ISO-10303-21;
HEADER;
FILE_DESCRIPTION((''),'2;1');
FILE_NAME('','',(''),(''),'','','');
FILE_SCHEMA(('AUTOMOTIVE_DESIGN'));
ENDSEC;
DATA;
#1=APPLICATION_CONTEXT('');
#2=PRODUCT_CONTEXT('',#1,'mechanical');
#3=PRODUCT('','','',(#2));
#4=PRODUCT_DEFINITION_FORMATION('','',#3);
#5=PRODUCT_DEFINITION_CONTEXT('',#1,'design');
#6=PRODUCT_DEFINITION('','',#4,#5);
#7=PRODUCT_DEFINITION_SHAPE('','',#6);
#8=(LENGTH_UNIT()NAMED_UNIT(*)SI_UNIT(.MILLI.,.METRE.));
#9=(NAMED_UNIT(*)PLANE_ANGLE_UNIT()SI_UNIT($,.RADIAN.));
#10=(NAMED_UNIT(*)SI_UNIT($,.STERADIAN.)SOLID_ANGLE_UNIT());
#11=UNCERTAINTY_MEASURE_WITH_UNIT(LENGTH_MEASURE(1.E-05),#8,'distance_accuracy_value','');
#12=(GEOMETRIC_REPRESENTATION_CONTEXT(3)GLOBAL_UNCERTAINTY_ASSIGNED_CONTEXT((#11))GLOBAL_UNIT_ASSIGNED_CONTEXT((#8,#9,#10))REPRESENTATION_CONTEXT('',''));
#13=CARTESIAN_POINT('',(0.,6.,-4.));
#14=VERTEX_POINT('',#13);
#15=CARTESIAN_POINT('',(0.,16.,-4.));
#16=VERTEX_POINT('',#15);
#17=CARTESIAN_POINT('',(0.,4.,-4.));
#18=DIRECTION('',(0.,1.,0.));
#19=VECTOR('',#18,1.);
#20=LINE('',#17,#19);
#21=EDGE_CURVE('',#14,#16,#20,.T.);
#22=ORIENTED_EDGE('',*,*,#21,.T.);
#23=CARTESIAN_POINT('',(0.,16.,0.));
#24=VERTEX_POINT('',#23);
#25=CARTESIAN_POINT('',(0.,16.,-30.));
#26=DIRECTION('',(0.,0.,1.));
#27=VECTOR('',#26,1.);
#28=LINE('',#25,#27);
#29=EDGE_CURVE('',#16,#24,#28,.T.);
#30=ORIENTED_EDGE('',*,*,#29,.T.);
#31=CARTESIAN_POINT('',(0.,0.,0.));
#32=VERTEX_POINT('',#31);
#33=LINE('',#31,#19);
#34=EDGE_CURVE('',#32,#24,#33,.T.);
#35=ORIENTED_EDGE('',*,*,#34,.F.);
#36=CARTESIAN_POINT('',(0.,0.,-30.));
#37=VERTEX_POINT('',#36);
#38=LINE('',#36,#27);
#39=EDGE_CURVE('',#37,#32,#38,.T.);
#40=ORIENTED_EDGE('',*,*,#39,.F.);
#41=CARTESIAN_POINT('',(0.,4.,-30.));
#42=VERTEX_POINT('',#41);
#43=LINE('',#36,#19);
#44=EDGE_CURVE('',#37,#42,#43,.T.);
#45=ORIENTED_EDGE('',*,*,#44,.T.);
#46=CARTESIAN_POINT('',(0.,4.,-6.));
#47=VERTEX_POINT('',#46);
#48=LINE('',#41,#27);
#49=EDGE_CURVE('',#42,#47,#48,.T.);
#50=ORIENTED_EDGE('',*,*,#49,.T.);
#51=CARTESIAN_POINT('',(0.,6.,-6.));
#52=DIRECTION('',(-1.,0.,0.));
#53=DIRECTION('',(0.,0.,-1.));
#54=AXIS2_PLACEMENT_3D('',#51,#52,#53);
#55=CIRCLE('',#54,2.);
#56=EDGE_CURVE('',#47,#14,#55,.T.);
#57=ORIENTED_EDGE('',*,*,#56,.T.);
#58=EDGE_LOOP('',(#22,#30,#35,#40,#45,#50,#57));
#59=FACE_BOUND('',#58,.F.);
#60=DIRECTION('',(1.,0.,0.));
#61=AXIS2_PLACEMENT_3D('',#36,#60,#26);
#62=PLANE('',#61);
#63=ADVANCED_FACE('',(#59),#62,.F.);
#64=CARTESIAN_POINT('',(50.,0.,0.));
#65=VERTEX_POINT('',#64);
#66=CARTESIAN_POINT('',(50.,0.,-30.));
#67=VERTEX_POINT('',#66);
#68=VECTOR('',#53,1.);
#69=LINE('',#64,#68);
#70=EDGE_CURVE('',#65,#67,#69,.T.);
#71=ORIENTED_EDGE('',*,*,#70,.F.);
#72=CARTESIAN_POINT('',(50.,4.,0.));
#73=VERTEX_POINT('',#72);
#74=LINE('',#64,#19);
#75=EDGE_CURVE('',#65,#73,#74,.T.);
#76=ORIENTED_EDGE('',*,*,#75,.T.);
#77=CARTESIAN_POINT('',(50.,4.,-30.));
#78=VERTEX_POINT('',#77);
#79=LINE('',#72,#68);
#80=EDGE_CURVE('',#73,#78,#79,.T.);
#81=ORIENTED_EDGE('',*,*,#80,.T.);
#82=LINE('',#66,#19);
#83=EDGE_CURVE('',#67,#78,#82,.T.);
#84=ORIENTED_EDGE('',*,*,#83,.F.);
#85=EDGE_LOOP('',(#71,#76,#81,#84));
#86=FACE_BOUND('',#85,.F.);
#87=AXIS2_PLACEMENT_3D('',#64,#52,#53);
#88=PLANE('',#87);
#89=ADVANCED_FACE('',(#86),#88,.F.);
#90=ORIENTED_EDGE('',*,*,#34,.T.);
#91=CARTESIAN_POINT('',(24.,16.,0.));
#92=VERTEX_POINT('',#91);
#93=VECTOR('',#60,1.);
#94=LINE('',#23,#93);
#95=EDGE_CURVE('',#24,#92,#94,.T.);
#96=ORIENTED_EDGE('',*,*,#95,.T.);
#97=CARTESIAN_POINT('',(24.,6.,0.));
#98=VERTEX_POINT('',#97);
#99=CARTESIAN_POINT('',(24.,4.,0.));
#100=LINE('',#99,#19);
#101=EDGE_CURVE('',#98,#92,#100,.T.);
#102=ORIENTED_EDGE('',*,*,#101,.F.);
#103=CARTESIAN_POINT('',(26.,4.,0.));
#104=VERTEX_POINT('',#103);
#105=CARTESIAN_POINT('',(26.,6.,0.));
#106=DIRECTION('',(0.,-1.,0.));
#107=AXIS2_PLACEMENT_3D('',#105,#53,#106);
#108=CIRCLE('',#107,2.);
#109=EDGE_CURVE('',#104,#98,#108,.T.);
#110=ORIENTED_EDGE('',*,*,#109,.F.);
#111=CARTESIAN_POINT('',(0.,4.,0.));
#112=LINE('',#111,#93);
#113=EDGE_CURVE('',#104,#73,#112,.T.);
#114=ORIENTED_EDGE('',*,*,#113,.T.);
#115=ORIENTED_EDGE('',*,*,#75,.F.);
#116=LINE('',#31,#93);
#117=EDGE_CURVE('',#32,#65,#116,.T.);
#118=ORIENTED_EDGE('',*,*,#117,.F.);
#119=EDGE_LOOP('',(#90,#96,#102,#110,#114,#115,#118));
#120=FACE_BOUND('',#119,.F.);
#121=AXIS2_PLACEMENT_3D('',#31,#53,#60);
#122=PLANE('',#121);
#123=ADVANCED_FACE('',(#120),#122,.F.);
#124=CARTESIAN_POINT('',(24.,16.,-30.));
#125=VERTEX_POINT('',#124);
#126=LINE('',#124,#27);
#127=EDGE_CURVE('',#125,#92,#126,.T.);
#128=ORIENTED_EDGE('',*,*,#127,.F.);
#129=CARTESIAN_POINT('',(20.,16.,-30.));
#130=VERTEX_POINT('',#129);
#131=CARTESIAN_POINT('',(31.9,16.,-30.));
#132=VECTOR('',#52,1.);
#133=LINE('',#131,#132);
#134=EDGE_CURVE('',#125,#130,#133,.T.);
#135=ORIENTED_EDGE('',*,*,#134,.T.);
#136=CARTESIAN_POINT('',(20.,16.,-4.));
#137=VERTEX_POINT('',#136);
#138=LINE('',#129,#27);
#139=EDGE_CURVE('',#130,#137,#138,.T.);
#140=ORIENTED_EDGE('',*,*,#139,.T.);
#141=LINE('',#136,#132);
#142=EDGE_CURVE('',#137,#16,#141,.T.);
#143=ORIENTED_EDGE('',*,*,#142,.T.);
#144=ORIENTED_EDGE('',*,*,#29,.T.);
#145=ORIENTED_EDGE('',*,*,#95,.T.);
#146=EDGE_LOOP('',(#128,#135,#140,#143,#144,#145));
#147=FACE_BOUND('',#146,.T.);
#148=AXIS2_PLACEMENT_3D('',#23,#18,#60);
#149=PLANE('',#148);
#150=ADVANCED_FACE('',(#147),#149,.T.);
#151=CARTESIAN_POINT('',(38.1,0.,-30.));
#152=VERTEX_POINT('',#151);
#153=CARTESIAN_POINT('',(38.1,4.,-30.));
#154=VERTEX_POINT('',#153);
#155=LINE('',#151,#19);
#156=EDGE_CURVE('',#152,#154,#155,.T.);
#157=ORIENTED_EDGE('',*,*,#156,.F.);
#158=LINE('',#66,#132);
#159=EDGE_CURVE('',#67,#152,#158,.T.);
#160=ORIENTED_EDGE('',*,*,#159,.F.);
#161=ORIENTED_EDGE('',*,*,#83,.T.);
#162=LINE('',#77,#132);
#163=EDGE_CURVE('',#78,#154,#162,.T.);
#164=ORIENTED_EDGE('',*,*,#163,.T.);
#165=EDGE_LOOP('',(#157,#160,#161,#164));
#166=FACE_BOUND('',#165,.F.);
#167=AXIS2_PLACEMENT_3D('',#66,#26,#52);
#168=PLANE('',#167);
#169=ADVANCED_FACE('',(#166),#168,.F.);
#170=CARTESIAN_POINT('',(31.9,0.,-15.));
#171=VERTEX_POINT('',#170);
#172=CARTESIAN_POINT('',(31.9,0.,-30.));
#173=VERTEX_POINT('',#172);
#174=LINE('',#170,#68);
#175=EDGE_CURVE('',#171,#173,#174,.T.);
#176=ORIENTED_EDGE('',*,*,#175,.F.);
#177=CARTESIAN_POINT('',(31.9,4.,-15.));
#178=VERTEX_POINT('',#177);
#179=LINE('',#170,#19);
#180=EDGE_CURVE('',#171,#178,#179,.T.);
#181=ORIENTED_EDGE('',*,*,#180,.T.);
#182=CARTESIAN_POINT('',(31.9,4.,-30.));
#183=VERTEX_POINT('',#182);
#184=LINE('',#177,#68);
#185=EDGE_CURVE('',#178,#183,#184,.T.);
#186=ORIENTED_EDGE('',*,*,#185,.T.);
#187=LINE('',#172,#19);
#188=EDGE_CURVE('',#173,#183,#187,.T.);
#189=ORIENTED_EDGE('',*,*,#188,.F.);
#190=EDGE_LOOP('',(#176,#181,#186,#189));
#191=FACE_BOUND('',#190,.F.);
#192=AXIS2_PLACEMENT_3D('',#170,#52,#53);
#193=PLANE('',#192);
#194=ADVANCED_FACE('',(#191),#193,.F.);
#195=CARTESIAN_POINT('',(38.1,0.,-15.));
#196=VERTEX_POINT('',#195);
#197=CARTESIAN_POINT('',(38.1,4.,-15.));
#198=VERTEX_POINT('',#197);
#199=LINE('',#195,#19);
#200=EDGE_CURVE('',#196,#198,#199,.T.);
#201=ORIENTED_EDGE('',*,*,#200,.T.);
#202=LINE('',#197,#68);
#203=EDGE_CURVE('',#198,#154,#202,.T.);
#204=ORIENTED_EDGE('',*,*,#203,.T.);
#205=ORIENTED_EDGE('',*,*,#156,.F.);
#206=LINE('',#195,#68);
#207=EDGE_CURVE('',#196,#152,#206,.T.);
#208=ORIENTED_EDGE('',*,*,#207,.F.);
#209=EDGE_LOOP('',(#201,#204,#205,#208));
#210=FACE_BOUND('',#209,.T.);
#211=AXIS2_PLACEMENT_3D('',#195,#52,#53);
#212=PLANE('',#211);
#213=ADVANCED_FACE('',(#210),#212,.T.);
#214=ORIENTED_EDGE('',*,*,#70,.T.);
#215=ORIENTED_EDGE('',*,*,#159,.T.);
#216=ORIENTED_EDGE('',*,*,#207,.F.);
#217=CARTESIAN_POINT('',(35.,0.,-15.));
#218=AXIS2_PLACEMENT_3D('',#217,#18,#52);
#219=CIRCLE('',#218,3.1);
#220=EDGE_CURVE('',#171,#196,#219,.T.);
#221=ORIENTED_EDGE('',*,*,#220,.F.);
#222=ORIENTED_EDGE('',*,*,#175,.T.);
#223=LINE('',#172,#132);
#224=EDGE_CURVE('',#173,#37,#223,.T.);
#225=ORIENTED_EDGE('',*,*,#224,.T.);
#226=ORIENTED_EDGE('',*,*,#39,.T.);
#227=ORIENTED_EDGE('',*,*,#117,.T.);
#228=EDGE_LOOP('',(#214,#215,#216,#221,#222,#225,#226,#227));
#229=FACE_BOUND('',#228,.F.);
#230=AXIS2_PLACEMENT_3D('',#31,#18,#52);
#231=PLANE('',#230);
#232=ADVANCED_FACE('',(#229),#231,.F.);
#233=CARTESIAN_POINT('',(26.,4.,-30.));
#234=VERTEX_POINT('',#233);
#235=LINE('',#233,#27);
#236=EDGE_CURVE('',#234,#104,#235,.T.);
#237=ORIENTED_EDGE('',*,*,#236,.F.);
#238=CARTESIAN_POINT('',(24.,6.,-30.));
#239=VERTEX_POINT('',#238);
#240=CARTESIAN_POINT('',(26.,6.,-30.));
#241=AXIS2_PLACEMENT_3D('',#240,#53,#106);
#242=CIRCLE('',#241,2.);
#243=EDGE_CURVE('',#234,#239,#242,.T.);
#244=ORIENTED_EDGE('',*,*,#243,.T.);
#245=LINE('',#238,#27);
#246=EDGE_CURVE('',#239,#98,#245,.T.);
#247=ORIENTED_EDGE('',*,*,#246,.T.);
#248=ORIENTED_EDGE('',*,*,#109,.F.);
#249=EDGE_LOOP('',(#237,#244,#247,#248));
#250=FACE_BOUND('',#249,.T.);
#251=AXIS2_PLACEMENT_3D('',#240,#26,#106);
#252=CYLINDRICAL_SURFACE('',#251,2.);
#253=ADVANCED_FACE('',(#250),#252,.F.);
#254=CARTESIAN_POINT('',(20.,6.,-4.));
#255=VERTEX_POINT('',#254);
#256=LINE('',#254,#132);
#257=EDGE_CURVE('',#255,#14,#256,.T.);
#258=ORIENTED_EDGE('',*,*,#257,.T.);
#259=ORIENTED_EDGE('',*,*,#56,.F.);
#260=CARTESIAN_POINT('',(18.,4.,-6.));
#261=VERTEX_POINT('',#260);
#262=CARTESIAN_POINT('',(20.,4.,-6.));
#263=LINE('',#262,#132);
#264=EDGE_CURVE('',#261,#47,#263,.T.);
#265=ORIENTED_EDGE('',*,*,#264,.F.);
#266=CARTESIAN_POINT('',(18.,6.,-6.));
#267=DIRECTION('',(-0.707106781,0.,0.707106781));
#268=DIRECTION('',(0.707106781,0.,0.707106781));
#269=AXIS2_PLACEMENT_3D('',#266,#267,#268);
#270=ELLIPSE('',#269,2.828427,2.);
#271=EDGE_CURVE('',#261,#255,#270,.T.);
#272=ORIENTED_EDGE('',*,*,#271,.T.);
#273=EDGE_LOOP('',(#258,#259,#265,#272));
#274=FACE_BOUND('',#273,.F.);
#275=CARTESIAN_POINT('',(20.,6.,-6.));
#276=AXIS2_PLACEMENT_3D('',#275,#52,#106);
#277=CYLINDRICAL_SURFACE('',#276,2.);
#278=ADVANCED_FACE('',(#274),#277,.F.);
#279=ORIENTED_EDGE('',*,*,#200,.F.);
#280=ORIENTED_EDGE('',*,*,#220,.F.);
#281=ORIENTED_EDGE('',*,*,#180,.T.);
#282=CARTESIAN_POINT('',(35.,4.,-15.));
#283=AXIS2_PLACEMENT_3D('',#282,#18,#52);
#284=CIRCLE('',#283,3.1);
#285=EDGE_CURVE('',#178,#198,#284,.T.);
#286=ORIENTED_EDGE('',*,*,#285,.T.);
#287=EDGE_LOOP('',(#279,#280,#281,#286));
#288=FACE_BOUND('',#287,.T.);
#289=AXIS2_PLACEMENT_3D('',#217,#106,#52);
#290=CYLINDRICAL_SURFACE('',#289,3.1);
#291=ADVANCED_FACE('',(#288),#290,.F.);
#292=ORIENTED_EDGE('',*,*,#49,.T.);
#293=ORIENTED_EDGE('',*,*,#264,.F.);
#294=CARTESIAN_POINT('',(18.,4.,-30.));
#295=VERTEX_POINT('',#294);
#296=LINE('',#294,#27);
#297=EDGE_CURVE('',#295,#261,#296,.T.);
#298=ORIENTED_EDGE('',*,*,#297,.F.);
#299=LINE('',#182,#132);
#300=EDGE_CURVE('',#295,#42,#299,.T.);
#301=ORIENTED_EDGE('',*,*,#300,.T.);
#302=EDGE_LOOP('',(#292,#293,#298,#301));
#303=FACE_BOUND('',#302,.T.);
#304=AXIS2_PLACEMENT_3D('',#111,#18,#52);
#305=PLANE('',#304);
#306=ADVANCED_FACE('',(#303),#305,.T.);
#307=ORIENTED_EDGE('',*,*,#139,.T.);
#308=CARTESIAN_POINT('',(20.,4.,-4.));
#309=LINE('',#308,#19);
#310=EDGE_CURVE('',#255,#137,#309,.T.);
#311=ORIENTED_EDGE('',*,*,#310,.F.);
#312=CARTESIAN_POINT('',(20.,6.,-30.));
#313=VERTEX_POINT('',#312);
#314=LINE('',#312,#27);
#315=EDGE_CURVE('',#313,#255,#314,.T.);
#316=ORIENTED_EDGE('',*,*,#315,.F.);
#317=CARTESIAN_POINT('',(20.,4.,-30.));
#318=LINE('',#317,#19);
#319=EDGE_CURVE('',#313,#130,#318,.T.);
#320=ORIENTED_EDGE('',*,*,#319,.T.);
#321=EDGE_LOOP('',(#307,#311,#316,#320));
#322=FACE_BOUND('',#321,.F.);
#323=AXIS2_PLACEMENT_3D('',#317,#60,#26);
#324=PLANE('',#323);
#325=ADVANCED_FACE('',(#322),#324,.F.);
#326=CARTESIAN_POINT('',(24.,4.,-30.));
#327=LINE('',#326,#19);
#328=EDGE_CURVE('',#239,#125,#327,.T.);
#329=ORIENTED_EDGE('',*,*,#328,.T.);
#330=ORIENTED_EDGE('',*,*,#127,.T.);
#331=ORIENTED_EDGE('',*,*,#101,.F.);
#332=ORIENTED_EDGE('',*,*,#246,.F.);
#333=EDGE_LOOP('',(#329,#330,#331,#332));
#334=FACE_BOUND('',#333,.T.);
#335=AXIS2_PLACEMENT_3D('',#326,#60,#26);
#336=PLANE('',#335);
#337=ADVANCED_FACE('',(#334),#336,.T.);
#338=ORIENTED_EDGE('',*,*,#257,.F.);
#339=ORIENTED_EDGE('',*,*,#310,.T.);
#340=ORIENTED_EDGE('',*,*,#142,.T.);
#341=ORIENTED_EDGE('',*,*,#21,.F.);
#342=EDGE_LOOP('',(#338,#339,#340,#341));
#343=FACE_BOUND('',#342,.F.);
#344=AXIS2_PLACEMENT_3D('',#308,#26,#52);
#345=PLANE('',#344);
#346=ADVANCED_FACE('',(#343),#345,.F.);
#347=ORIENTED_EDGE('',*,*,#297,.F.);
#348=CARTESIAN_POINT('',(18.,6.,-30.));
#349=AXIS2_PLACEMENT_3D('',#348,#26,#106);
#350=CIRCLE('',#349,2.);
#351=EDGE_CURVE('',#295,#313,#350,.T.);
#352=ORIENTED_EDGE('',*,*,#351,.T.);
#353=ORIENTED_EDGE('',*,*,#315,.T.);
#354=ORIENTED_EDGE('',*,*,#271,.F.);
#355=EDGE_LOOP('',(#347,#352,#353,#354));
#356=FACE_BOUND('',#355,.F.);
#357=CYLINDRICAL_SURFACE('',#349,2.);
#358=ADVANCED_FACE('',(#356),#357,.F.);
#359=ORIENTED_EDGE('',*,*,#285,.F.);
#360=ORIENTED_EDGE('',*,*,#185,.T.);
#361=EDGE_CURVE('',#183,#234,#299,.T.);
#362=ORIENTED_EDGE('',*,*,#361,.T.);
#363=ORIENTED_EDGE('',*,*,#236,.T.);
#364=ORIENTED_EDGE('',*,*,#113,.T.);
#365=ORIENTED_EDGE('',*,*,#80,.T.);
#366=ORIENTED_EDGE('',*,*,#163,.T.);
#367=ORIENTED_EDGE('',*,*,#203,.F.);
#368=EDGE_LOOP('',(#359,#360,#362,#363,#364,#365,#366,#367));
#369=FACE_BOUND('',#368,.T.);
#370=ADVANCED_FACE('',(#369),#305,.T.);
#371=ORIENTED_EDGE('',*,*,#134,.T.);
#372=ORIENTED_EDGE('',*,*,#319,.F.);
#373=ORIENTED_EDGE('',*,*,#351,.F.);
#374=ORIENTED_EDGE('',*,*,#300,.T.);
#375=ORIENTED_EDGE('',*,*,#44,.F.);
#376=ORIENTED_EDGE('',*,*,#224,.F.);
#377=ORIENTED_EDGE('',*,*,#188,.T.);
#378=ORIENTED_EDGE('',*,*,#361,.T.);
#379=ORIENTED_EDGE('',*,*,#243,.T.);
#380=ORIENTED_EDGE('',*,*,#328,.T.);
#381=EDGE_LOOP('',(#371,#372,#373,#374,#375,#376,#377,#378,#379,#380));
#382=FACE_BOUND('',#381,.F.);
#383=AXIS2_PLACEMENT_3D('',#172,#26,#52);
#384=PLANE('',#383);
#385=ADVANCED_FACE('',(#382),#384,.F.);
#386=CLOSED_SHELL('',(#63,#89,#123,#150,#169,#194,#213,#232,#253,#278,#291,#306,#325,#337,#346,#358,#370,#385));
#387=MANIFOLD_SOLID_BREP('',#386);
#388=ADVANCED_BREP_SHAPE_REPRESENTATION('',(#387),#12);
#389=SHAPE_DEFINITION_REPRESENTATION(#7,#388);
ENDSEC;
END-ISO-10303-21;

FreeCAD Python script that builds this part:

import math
import FreeCAD as App
import Part
import Sketcher

V = App.Vector


def edges_at(feature, points):
    """Names of the edges that pass closest to the given points."""
    edges = feature.Shape.Edges
    near = lambda p: min(range(len(edges)), key=lambda i: edges[i].distToShape(Part.Vertex(*p))[0])
    return sorted({f"Edge{near(p) + 1}" for p in points})

doc = App.newDocument("Part")
body = doc.addObject("PartDesign::Body", "Body")

sketch1 = body.newObject("Sketcher::SketchObject", "Sketch")
sketch1.AttachmentSupport = (doc.getObject("XZ_Plane"), [""])
sketch1.MapMode = "FlatFace"
sketch1.addGeometry([
    Part.LineSegment(V(0, -30, 0), V(0, 0, 0)),
    Part.LineSegment(V(0, 0, 0), V(50, 0, 0)),
    Part.LineSegment(V(50, 0, 0), V(50, -30, 0)),
    Part.LineSegment(V(50, -30, 0), V(38.1, -30, 0)),
    Part.LineSegment(V(38.1, -30, 0), V(38.1, -15, 0)),
    Part.ArcOfCircle(Part.Circle(V(35, -15, 0), V(0, 0, 1), 3.1), math.radians(0), math.radians(180)),
    Part.LineSegment(V(31.9, -15, 0), V(31.9, -30, 0)),
    Part.LineSegment(V(31.9, -30, 0), V(0, -30, 0)),
], False)
sketch1.addConstraint([
    Sketcher.Constraint("Coincident", 0, 2, 1, 1),
    Sketcher.Constraint("Coincident", 1, 2, 2, 1),
    Sketcher.Constraint("Coincident", 2, 2, 3, 1),
    Sketcher.Constraint("Coincident", 3, 2, 4, 1),
    Sketcher.Constraint("Tangent", 4, 2, 5, 1),
    Sketcher.Constraint("Tangent", 5, 2, 6, 1),
    Sketcher.Constraint("Coincident", 6, 2, 7, 1),
    Sketcher.Constraint("Coincident", 7, 2, 0, 1),
    Sketcher.Constraint("Vertical", 0),
    Sketcher.Constraint("Horizontal", 1),
    Sketcher.Constraint("Vertical", 2),
    Sketcher.Constraint("Horizontal", 3),
    Sketcher.Constraint("Vertical", 4),
    Sketcher.Constraint("Vertical", 6),
    Sketcher.Constraint("Horizontal", 7),
    Sketcher.Constraint("Coincident", 0, 2, -1, 1),
    Sketcher.Constraint("Horizontal", 3, 2, 6, 2),
    Sketcher.Constraint("Radius", 5, 3.1),
    Sketcher.Constraint("DistanceX", 1, 1, 1, 2, 50.0),
    Sketcher.Constraint("DistanceY", 0, 1, 0, 2, 30.0),
    Sketcher.Constraint("DistanceY", 4, 1, 4, 2, 15.0),
    Sketcher.Constraint("DistanceX", 5, 3, 1, 2, 15.0),
])
pad1 = body.newObject("PartDesign::Pad", "Pad")
pad1.Profile = sketch1
pad1.Length = 4
pad1.Reversed = True

sketch2 = body.newObject("Sketcher::SketchObject", "Sketch001")
sketch2.AttachmentSupport = (doc.getObject("XZ_Plane"), [""])
sketch2.MapMode = "FlatFace"
sketch2.AttachmentOffset = App.Placement(V(0, 0, -4), App.Rotation())
sketch2.addGeometry([
    Part.LineSegment(V(24, 0, 0), V(24, -30, 0)),
    Part.LineSegment(V(24, -30, 0), V(20, -30, 0)),
    Part.LineSegment(V(20, -30, 0), V(20, -4, 0)),
    Part.LineSegment(V(20, -4, 0), V(0, -4, 0)),
    Part.LineSegment(V(0, -4, 0), V(0, 0, 0)),
    Part.LineSegment(V(0, 0, 0), V(24, 0, 0)),
], False)
sketch2.addConstraint([
    Sketcher.Constraint("Coincident", 0, 2, 1, 1),
    Sketcher.Constraint("Coincident", 1, 2, 2, 1),
    Sketcher.Constraint("Coincident", 2, 2, 3, 1),
    Sketcher.Constraint("Coincident", 3, 2, 4, 1),
    Sketcher.Constraint("Coincident", 4, 2, 5, 1),
    Sketcher.Constraint("Coincident", 5, 2, 0, 1),
    Sketcher.Constraint("Vertical", 0),
    Sketcher.Constraint("Horizontal", 1),
    Sketcher.Constraint("Vertical", 2),
    Sketcher.Constraint("Horizontal", 3),
    Sketcher.Constraint("Vertical", 4),
    Sketcher.Constraint("Horizontal", 5),
    Sketcher.Constraint("Coincident", 4, 2, -1, 1),
    Sketcher.Constraint("Equal", 1, 4),
    Sketcher.Constraint("DistanceX", 1, 2, 1, 1, 4.0),
    Sketcher.Constraint("DistanceY", 0, 2, 0, 1, 30.0),
    Sketcher.Constraint("DistanceX", 3, 2, 3, 1, 20.0),
])
pad2 = body.newObject("PartDesign::Pad", "Pad001")
pad2.Profile = sketch2
pad2.Length = 12
pad2.Reversed = True
doc.recompute()

fillet = body.newObject("PartDesign::Fillet", "Fillet")
fillet.Base = (pad2, edges_at(pad2, [(20, 4, -17), (10, 4, -4), (24, 4, -15)]))
fillet.Radius = 2

doc.recompute()
